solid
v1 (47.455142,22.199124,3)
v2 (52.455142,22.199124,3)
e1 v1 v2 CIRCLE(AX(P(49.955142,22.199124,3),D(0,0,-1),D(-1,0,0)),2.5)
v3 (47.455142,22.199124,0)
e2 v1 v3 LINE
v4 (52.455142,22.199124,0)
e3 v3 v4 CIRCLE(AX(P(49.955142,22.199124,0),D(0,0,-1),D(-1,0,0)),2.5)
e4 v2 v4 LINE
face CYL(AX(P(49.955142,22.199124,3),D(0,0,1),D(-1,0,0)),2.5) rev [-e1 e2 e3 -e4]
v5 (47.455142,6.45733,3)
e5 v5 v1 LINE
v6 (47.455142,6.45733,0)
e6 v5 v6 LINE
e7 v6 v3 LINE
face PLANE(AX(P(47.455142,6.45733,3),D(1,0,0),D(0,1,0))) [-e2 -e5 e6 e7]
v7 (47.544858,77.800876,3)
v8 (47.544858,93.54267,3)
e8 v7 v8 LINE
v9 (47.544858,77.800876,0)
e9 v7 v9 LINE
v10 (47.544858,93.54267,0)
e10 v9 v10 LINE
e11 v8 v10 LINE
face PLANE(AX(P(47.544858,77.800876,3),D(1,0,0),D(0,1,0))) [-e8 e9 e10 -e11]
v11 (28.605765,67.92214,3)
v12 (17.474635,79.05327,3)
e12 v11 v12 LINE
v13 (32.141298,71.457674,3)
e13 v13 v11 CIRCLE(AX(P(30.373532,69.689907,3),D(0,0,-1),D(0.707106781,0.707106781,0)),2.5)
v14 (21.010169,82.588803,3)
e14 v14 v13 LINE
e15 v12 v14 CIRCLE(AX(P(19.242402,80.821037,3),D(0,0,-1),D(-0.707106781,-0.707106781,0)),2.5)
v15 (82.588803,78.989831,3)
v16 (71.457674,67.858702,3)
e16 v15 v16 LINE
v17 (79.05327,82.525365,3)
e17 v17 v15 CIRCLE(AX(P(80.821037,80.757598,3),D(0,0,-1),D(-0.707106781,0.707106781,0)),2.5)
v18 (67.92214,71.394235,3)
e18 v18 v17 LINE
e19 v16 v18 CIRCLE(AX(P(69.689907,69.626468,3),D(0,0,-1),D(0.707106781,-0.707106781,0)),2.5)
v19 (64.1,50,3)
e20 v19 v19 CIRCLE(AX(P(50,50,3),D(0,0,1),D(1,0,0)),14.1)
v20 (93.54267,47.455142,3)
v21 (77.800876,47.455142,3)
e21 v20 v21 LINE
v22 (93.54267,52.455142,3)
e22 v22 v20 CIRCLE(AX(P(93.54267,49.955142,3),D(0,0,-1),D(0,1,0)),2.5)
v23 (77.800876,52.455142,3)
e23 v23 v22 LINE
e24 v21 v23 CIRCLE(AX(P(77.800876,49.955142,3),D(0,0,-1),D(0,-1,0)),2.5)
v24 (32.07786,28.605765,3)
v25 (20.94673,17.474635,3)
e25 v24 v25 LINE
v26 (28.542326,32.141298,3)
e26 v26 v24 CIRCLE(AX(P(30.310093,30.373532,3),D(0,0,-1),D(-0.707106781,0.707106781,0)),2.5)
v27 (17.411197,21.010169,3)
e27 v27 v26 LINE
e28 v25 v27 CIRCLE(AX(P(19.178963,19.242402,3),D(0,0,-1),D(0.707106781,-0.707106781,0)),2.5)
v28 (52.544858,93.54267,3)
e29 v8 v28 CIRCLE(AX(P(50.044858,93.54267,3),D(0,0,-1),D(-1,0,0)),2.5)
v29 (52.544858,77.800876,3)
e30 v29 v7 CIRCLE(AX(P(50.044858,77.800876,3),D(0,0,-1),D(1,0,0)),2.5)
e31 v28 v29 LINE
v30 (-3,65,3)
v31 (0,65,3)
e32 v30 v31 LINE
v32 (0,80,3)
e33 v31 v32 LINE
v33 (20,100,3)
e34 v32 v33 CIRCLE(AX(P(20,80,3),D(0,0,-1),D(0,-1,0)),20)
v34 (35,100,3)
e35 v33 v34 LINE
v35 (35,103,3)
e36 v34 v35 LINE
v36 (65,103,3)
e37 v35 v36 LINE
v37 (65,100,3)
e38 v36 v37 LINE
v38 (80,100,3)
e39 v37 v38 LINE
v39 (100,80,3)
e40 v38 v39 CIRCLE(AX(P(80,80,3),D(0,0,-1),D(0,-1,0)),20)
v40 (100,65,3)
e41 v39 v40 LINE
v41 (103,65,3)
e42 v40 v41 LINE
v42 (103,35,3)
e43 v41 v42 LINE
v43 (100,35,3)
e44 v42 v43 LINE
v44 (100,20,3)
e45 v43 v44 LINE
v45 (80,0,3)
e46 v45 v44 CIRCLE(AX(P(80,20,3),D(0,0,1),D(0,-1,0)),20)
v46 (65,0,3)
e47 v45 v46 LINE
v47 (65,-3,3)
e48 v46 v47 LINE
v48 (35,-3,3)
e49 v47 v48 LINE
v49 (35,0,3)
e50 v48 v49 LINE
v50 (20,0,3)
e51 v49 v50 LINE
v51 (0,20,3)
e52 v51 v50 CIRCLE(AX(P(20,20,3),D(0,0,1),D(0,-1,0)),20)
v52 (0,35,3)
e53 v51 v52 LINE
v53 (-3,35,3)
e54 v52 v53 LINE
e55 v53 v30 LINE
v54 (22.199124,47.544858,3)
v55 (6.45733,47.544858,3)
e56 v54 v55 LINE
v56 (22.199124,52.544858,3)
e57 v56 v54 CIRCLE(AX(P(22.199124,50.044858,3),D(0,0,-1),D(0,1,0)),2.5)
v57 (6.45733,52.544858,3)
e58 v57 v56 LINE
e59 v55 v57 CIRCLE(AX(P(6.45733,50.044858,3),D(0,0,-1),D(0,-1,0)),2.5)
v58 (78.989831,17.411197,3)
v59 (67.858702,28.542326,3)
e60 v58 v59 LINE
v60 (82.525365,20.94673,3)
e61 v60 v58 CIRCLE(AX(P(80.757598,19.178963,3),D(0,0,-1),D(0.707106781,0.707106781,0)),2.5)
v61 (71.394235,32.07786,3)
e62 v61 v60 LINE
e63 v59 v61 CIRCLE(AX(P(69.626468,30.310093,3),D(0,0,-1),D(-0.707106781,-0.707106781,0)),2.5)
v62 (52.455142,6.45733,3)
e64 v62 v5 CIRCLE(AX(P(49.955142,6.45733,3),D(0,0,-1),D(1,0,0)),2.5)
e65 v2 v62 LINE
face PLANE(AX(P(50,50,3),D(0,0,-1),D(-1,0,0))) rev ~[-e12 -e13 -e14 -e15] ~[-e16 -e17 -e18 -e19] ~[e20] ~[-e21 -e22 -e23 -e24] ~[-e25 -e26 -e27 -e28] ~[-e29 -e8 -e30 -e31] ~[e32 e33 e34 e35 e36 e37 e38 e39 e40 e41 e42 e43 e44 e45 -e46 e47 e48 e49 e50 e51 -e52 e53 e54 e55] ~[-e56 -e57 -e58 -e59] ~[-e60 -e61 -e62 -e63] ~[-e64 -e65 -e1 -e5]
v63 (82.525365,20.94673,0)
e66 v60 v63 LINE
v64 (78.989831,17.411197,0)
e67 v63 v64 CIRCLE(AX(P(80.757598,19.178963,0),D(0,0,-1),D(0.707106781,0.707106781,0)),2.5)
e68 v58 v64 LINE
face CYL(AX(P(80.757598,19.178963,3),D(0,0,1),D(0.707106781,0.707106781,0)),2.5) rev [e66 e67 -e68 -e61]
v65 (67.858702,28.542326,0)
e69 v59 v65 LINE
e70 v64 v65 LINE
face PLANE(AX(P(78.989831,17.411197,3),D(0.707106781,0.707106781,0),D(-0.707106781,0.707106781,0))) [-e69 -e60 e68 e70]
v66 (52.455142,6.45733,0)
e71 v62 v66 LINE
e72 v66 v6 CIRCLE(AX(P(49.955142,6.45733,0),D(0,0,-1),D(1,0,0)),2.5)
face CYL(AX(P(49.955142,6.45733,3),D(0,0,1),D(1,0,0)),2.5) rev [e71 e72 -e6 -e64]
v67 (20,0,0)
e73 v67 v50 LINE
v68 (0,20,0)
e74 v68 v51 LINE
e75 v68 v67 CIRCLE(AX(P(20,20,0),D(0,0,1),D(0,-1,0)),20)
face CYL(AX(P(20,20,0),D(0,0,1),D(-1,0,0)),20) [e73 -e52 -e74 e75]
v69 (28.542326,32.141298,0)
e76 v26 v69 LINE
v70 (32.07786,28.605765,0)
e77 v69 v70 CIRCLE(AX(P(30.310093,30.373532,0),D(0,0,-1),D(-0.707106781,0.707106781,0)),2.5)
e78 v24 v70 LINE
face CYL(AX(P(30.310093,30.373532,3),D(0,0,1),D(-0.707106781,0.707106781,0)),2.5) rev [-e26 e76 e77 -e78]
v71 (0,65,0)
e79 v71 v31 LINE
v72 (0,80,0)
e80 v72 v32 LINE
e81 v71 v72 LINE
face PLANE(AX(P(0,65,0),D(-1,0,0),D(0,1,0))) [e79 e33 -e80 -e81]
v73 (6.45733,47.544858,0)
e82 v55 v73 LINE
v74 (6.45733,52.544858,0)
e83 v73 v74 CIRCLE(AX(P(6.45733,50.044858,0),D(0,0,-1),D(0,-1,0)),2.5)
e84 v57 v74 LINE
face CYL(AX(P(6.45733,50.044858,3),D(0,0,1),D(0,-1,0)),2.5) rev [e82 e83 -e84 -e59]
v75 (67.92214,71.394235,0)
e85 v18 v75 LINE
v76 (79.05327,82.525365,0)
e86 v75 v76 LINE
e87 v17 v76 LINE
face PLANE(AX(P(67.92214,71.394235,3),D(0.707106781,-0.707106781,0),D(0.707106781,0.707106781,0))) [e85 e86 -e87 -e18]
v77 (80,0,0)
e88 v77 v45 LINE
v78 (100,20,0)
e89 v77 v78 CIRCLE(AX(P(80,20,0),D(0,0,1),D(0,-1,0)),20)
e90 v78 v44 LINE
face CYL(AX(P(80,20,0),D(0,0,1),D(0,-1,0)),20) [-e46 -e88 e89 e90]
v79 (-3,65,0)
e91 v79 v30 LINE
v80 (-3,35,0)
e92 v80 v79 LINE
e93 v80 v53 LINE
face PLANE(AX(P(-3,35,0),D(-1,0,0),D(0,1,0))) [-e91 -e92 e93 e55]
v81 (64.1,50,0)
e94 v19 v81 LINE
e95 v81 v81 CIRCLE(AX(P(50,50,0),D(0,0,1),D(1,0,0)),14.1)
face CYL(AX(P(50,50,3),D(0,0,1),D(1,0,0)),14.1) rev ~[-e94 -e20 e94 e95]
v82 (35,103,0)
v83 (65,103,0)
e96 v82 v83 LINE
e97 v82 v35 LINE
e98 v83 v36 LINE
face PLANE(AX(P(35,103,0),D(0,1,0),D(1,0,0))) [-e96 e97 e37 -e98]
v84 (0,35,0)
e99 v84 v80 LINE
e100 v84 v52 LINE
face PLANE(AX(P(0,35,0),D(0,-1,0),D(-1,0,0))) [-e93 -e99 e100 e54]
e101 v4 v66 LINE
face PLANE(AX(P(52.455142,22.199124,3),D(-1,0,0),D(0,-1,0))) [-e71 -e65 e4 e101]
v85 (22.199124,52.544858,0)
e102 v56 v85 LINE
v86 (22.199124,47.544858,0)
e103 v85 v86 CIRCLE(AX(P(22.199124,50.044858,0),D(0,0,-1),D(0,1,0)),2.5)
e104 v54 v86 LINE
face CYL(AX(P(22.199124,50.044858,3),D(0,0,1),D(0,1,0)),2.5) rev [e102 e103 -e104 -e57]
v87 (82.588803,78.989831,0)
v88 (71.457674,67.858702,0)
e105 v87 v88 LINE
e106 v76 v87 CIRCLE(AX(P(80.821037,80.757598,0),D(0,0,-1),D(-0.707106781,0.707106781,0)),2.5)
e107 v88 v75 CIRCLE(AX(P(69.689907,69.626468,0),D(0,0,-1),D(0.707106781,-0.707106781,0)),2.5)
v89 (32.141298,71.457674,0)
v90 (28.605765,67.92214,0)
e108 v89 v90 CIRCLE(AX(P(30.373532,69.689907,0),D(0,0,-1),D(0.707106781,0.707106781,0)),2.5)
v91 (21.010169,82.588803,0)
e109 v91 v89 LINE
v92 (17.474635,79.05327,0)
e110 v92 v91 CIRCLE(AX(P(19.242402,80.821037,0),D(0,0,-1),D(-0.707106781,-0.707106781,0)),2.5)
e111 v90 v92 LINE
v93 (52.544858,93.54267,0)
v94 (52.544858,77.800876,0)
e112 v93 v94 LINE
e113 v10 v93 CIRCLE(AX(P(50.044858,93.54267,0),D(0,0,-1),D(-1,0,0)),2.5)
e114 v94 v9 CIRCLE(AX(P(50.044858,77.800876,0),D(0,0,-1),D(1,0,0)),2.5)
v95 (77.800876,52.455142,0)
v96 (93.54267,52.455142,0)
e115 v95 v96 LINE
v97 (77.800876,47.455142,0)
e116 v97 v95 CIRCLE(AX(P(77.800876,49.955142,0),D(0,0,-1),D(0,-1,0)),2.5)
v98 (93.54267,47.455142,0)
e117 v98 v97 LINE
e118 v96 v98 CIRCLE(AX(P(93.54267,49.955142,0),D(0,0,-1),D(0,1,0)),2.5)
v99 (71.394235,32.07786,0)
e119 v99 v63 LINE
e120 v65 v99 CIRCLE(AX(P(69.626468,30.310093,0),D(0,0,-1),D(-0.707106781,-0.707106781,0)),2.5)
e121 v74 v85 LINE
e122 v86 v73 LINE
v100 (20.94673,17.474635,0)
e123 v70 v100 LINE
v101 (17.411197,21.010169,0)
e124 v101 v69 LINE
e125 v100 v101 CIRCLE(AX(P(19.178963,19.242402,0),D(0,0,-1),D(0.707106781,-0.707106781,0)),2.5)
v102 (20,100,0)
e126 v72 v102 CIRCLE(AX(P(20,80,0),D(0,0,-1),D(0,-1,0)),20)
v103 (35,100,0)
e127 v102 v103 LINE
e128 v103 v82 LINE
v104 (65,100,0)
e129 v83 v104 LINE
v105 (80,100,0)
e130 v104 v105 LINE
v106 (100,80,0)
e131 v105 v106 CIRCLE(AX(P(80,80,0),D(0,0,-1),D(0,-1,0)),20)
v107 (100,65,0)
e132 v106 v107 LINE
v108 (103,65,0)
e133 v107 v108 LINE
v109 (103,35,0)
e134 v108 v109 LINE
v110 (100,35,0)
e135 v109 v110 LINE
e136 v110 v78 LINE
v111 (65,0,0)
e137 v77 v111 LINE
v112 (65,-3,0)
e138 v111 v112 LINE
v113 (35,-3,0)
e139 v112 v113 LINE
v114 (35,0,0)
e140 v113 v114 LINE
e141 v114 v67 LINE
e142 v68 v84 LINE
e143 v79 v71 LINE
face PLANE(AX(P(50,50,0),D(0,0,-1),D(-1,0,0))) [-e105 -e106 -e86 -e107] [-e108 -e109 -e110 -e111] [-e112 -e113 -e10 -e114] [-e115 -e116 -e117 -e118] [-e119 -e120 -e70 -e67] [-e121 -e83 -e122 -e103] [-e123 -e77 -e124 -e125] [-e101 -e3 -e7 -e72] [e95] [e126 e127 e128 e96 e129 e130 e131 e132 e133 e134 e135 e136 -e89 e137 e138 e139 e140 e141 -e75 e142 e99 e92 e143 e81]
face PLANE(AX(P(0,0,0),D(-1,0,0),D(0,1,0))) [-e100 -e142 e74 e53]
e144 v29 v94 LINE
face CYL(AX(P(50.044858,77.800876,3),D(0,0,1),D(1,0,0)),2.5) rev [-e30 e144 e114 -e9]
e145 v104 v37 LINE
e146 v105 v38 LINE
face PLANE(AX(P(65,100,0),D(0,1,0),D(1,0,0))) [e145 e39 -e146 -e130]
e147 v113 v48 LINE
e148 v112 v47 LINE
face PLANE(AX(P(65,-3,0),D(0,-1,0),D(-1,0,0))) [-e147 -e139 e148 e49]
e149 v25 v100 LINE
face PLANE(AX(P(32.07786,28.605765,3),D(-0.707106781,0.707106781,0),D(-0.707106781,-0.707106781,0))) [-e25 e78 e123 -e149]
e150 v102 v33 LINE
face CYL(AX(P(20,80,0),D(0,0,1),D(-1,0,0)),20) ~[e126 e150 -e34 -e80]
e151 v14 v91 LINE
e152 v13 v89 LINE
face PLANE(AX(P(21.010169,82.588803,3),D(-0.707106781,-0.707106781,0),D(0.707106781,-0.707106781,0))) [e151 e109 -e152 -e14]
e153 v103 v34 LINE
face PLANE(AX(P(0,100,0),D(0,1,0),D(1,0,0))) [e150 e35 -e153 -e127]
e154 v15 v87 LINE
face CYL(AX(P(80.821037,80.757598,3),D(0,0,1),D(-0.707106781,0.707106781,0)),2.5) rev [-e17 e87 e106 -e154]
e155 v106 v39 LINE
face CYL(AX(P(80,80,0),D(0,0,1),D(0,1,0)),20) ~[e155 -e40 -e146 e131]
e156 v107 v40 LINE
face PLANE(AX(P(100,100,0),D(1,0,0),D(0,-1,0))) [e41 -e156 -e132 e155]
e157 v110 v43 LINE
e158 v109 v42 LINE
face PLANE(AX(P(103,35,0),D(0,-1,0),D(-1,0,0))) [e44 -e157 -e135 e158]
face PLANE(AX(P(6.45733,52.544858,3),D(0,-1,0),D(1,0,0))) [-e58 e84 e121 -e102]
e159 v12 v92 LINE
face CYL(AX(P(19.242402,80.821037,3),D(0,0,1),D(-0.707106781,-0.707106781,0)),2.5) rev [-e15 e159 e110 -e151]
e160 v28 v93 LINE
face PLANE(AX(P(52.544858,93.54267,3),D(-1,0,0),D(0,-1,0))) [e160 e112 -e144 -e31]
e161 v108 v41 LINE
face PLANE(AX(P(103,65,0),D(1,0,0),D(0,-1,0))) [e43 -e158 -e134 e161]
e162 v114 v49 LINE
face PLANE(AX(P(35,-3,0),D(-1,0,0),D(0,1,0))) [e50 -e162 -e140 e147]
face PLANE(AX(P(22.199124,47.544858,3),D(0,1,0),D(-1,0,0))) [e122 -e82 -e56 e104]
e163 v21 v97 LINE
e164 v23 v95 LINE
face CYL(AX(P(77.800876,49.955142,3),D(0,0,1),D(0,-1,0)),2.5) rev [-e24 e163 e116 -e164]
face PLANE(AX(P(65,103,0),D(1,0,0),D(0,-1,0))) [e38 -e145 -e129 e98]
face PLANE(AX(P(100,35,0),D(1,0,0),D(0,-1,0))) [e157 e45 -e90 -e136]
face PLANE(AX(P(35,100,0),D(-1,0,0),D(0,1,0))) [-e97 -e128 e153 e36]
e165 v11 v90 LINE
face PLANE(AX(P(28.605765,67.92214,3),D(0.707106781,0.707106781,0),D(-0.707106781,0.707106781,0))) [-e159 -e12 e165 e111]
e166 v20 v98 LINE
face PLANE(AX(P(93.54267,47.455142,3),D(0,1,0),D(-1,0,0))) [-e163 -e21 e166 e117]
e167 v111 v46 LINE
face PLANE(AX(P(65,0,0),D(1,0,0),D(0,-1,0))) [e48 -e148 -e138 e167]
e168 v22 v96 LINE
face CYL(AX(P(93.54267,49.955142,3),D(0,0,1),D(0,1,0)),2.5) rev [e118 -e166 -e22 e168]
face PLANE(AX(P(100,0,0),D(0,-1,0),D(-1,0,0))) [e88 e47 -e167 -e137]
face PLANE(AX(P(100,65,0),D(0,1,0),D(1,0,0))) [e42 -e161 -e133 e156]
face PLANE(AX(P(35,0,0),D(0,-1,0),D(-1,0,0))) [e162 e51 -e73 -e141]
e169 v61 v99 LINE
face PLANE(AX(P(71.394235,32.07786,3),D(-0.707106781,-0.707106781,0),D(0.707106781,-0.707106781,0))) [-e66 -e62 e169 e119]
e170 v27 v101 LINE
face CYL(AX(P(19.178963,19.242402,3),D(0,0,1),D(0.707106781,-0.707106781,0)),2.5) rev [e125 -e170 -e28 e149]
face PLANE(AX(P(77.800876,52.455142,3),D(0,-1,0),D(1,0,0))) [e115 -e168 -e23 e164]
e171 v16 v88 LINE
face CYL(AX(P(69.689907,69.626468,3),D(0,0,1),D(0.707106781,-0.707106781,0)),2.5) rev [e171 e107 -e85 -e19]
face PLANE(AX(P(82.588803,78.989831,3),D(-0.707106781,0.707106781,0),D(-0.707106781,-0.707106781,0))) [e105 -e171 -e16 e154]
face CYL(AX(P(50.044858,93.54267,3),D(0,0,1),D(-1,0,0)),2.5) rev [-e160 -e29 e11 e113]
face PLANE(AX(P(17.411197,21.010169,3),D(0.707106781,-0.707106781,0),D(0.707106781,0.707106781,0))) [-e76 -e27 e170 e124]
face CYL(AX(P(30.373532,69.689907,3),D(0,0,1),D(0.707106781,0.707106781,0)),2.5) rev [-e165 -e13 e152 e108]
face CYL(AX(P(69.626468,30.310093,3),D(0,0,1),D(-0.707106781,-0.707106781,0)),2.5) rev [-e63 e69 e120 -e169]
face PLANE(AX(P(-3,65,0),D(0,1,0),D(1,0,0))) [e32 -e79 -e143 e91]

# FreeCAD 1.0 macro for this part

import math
import FreeCAD as App
import Part
import Sketcher
from FreeCAD import Vector
Q = App.Units.Quantity


def edges_at(feature, points):
    """Names of the edges that pass closest to the given points."""
    edges = feature.Shape.Edges
    near = lambda p: min(range(len(edges)), key=lambda i: edges[i].distToShape(Part.Vertex(*p))[0])
    return sorted({f"Edge{near(p) + 1}" for p in points})

doc = App.newDocument("Part")
params = doc.addObject("Spreadsheet::Sheet", "Params")
for row, (alias, value) in enumerate([
    ("sketch1_width", "35 mm"),
    ("sketch1_width2", "30 mm"),
    ("sketch1_width3", "3 mm"),
    ("pad1_length", "3 mm"),
    ("sketch2_diameter", "28.2 mm"),
    ("pocket1_length", "3 mm"),
    ("fillet_radius", "20 mm"),
    ("sketch3_radius", "2.5 mm"),
    ("pocket2_length", "3 mm"),
], start=1):
    params.set(f"A{row}", alias)
    params.set(f"B{row}", "=" + value)
    params.setAlias(f"B{row}", alias)

body = doc.addObject("PartDesign::Body", "Body")

# Sketch on XY plane
sketch1 = body.newObject("Sketcher::SketchObject", "Sketch")
sketch1.AttachmentSupport = (doc.getObject("XY_Plane"), [""])
sketch1.MapMode = "FlatFace"
sketch1.addGeometry([
    Part.LineSegment(Vector(0, 35, 0), Vector(0, 0, 0)),  # 0
    Part.LineSegment(Vector(0, 0, 0), Vector(35, 0, 0)),  # 1
    Part.LineSegment(Vector(35, 0, 0), Vector(35, -3, 0)),  # 2
    Part.LineSegment(Vector(35, -3, 0), Vector(65, -3, 0)),  # 3
    Part.LineSegment(Vector(65, -3, 0), Vector(65, 0, 0)),  # 4
    Part.LineSegment(Vector(65, 0, 0), Vector(100, 0, 0)),  # 5
    Part.LineSegment(Vector(100, 0, 0), Vector(100, 35, 0)),  # 6
    Part.LineSegment(Vector(100, 35, 0), Vector(103, 35, 0)),  # 7
    Part.LineSegment(Vector(103, 35, 0), Vector(103, 65, 0)),  # 8
    Part.LineSegment(Vector(103, 65, 0), Vector(100, 65, 0)),  # 9
    Part.LineSegment(Vector(100, 65, 0), Vector(100, 100, 0)),  # 10
    Part.LineSegment(Vector(100, 100, 0), Vector(65, 100, 0)),  # 11
    Part.LineSegment(Vector(65, 100, 0), Vector(65, 103, 0)),  # 12
    Part.LineSegment(Vector(65, 103, 0), Vector(35, 103, 0)),  # 13
    Part.LineSegment(Vector(35, 103, 0), Vector(35, 100, 0)),  # 14
    Part.LineSegment(Vector(35, 100, 0), Vector(0, 100, 0)),  # 15
    Part.LineSegment(Vector(0, 100, 0), Vector(0, 65, 0)),  # 16
    Part.LineSegment(Vector(0, 65, 0), Vector(-3, 65, 0)),  # 17
    Part.LineSegment(Vector(-3, 65, 0), Vector(-3, 35, 0)),  # 18
    Part.LineSegment(Vector(-3, 35, 0), Vector(0, 35, 0)),  # 19
], False)
sketch1.addConstraint([
    Sketcher.Constraint("Coincident", 0, 2, 1, 1),
    Sketcher.Constraint("Coincident", 1, 2, 2, 1),
    Sketcher.Constraint("Coincident", 2, 2, 3, 1),
    Sketcher.Constraint("Coincident", 3, 2, 4, 1),
    Sketcher.Constraint("Coincident", 4, 2, 5, 1),
    Sketcher.Constraint("Coincident", 5, 2, 6, 1),
    Sketcher.Constraint("Coincident", 6, 2, 7, 1),
    Sketcher.Constraint("Coincident", 7, 2, 8, 1),
    Sketcher.Constraint("Coincident", 8, 2, 9, 1),
    Sketcher.Constraint("Coincident", 9, 2, 10, 1),
    Sketcher.Constraint("Coincident", 10, 2, 11, 1),
    Sketcher.Constraint("Coincident", 11, 2, 12, 1),
    Sketcher.Constraint("Coincident", 12, 2, 13, 1),
    Sketcher.Constraint("Coincident", 13, 2, 14, 1),
    Sketcher.Constraint("Coincident", 14, 2, 15, 1),
    Sketcher.Constraint("Coincident", 15, 2, 16, 1),
    Sketcher.Constraint("Coincident", 16, 2, 17, 1),
    Sketcher.Constraint("Coincident", 17, 2, 18, 1),
    Sketcher.Constraint("Coincident", 18, 2, 19, 1),
    Sketcher.Constraint("Coincident", 19, 2, 0, 1),
    Sketcher.Constraint("Vertical", 0),
    Sketcher.Constraint("Horizontal", 1),
    Sketcher.Constraint("Vertical", 2),
    Sketcher.Constraint("Horizontal", 3),
    Sketcher.Constraint("Vertical", 4),
    Sketcher.Constraint("Horizontal", 5),
    Sketcher.Constraint("Vertical", 6),
    Sketcher.Constraint("Horizontal", 7),
    Sketcher.Constraint("Vertical", 8),
    Sketcher.Constraint("Horizontal", 9),
    Sketcher.Constraint("Vertical", 10),
    Sketcher.Constraint("Horizontal", 11),
    Sketcher.Constraint("Vertical", 12),
    Sketcher.Constraint("Horizontal", 13),
    Sketcher.Constraint("Vertical", 14),
    Sketcher.Constraint("Horizontal", 15),
    Sketcher.Constraint("Vertical", 16),
    Sketcher.Constraint("Horizontal", 17),
    Sketcher.Constraint("Vertical", 18),
    Sketcher.Constraint("Horizontal", 19),
    Sketcher.Constraint("Coincident", 0, 2, -1, 1),
    Sketcher.Constraint("PointOnObject", 4, 2, -1),
    Sketcher.Constraint("PointOnObject", 15, 2, -2),
    Sketcher.Constraint("Horizontal", 11, 2, 14, 2),
    Sketcher.Constraint("Horizontal", 9, 2, 16, 2),
    Sketcher.Constraint("Horizontal", 7, 2, 18, 2),
    Sketcher.Constraint("Vertical", 6, 2, 9, 2),
    Sketcher.Constraint("Vertical", 4, 2, 11, 2),
    Sketcher.Constraint("Vertical", 2, 2, 13, 2),
    Sketcher.Constraint("Equal", 1, 5),
    Sketcher.Constraint("Equal", 9, 17),
    Sketcher.Constraint("Equal", 15, 0),
    Sketcher.Constraint("Equal", 19, 2),
    Sketcher.Constraint("Equal", 13, 8),
    Sketcher.Constraint("Equal", 6, 10),
    Sketcher.Constraint("Equal", 4, 12),
    Sketcher.Constraint("DistanceX", 1, 1, 1, 2, Q("35 mm")),
    Sketcher.Constraint("DistanceX", 3, 1, 3, 2, Q("30 mm")),
    Sketcher.Constraint("DistanceX", 7, 1, 7, 2, Q("3 mm")),
])
sketch1.setExpression("Constraints[56]", "Params.sketch1_width")
sketch1.setExpression("Constraints[57]", "Params.sketch1_width2")
sketch1.setExpression("Constraints[58]", "Params.sketch1_width3")
pad1 = body.newObject("PartDesign::Pad", "Pad")
pad1.Profile = sketch1
pad1.setExpression("Length", "Params.pad1_length")

# Sketch on XY plane
sketch2 = body.newObject("Sketcher::SketchObject", "Sketch001")
sketch2.AttachmentSupport = (doc.getObject("XY_Plane"), [""])
sketch2.MapMode = "FlatFace"
sketch2.AttachmentOffset = App.Placement(Vector(0, 0, 3), App.Rotation())
sketch2.addGeometry(Part.Circle(Vector(50, 50, 0), Vector(0, 0, 1), 14.1), False)
sketch2.addConstraint([
    Sketcher.Constraint("Diameter", 0, Q("28.2 mm")),
    Sketcher.Constraint("DistanceX", -1, 1, 0, 3, Q("50 mm")),
    Sketcher.Constraint("DistanceY", -1, 1, 0, 3, Q("50 mm")),
])
sketch2.setExpression("Constraints[0]", "Params.sketch2_diameter")
pocket1 = body.newObject("PartDesign::Pocket", "Pocket")
pocket1.Profile = sketch2
pocket1.setExpression("Length", "Params.pocket1_length")
doc.recompute()

fillet = body.newObject("PartDesign::Fillet", "Fillet")
fillet.Base = (pocket1, edges_at(pocket1, [
    (0, 0, 1.5),
    (0, 100, 1.5),
    (100, 100, 1.5),
    (100, 0, 1.5),
]))
fillet.setExpression("Radius", "Params.fillet_radius")

# Sketch on XY plane
sketch3 = body.newObject("Sketcher::SketchObject", "Sketch002")
sketch3.AttachmentSupport = (doc.getObject("XY_Plane"), [""])
sketch3.MapMode = "FlatFace"
sketch3.AttachmentOffset = App.Placement(Vector(0, 0, 3), App.Rotation())
sketch3.addGeometry([
    Part.LineSegment(Vector(52.544858, 77.800876, 0), Vector(52.544858, 93.54267, 0)),
    Part.ArcOfCircle(Part.Circle(Vector(50.044858, 93.54267, 0), Vector(0, 0, 1), 2.5), math.radians(0), math.radians(180)),
    Part.LineSegment(Vector(47.544858, 93.54267, 0), Vector(47.544858, 77.800876, 0)),
    Part.ArcOfCircle(Part.Circle(Vector(50.044858, 77.800876, 0), Vector(0, 0, 1), 2.5), math.radians(180), math.radians(360)),
], False)
sketch3.addConstraint([
    Sketcher.Constraint("Tangent", 0, 2, 1, 1),
    Sketcher.Constraint("Tangent", 1, 2, 2, 1),
    Sketcher.Constraint("Tangent", 2, 2, 3, 1),
    Sketcher.Constraint("Tangent", 3, 2, 0, 1),
    Sketcher.Constraint("Vertical", 0),
    Sketcher.Constraint("Vertical", 2),
    Sketcher.Constraint("Radius", 1, Q("2.5 mm")),
    Sketcher.Constraint("DistanceY", 0, 1, 0, 2, Q("15.741795 mm")),
    Sketcher.Constraint("DistanceY", -1, 1, 1, 3, Q("93.54267 mm")),
    Sketcher.Constraint("DistanceX", -1, 1, 1, 3, Q("50.044858 mm")),
])
sketch3.setExpression("Constraints[6]", "Params.sketch3_radius")
pocket2 = body.newObject("PartDesign::Pocket", "Pocket001")
pocket2.Profile = sketch3
pocket2.setExpression("Length", "Params.pocket2_length")
doc.recompute()

datumline = body.newObject("PartDesign::Line", "DatumLine")
datumline.Placement = App.Placement(Vector(50, 50, 0), App.Rotation(Vector(0, 0, 1), Vector(0, 0, 1)))
polarpattern = body.newObject("PartDesign::PolarPattern", "PolarPattern")
polarpattern.Originals = [pocket2]
polarpattern.Axis = (datumline, [""])
polarpattern.Angle = 360
polarpattern.Occurrences = 8
body.Tip = polarpattern

doc.recompute()
